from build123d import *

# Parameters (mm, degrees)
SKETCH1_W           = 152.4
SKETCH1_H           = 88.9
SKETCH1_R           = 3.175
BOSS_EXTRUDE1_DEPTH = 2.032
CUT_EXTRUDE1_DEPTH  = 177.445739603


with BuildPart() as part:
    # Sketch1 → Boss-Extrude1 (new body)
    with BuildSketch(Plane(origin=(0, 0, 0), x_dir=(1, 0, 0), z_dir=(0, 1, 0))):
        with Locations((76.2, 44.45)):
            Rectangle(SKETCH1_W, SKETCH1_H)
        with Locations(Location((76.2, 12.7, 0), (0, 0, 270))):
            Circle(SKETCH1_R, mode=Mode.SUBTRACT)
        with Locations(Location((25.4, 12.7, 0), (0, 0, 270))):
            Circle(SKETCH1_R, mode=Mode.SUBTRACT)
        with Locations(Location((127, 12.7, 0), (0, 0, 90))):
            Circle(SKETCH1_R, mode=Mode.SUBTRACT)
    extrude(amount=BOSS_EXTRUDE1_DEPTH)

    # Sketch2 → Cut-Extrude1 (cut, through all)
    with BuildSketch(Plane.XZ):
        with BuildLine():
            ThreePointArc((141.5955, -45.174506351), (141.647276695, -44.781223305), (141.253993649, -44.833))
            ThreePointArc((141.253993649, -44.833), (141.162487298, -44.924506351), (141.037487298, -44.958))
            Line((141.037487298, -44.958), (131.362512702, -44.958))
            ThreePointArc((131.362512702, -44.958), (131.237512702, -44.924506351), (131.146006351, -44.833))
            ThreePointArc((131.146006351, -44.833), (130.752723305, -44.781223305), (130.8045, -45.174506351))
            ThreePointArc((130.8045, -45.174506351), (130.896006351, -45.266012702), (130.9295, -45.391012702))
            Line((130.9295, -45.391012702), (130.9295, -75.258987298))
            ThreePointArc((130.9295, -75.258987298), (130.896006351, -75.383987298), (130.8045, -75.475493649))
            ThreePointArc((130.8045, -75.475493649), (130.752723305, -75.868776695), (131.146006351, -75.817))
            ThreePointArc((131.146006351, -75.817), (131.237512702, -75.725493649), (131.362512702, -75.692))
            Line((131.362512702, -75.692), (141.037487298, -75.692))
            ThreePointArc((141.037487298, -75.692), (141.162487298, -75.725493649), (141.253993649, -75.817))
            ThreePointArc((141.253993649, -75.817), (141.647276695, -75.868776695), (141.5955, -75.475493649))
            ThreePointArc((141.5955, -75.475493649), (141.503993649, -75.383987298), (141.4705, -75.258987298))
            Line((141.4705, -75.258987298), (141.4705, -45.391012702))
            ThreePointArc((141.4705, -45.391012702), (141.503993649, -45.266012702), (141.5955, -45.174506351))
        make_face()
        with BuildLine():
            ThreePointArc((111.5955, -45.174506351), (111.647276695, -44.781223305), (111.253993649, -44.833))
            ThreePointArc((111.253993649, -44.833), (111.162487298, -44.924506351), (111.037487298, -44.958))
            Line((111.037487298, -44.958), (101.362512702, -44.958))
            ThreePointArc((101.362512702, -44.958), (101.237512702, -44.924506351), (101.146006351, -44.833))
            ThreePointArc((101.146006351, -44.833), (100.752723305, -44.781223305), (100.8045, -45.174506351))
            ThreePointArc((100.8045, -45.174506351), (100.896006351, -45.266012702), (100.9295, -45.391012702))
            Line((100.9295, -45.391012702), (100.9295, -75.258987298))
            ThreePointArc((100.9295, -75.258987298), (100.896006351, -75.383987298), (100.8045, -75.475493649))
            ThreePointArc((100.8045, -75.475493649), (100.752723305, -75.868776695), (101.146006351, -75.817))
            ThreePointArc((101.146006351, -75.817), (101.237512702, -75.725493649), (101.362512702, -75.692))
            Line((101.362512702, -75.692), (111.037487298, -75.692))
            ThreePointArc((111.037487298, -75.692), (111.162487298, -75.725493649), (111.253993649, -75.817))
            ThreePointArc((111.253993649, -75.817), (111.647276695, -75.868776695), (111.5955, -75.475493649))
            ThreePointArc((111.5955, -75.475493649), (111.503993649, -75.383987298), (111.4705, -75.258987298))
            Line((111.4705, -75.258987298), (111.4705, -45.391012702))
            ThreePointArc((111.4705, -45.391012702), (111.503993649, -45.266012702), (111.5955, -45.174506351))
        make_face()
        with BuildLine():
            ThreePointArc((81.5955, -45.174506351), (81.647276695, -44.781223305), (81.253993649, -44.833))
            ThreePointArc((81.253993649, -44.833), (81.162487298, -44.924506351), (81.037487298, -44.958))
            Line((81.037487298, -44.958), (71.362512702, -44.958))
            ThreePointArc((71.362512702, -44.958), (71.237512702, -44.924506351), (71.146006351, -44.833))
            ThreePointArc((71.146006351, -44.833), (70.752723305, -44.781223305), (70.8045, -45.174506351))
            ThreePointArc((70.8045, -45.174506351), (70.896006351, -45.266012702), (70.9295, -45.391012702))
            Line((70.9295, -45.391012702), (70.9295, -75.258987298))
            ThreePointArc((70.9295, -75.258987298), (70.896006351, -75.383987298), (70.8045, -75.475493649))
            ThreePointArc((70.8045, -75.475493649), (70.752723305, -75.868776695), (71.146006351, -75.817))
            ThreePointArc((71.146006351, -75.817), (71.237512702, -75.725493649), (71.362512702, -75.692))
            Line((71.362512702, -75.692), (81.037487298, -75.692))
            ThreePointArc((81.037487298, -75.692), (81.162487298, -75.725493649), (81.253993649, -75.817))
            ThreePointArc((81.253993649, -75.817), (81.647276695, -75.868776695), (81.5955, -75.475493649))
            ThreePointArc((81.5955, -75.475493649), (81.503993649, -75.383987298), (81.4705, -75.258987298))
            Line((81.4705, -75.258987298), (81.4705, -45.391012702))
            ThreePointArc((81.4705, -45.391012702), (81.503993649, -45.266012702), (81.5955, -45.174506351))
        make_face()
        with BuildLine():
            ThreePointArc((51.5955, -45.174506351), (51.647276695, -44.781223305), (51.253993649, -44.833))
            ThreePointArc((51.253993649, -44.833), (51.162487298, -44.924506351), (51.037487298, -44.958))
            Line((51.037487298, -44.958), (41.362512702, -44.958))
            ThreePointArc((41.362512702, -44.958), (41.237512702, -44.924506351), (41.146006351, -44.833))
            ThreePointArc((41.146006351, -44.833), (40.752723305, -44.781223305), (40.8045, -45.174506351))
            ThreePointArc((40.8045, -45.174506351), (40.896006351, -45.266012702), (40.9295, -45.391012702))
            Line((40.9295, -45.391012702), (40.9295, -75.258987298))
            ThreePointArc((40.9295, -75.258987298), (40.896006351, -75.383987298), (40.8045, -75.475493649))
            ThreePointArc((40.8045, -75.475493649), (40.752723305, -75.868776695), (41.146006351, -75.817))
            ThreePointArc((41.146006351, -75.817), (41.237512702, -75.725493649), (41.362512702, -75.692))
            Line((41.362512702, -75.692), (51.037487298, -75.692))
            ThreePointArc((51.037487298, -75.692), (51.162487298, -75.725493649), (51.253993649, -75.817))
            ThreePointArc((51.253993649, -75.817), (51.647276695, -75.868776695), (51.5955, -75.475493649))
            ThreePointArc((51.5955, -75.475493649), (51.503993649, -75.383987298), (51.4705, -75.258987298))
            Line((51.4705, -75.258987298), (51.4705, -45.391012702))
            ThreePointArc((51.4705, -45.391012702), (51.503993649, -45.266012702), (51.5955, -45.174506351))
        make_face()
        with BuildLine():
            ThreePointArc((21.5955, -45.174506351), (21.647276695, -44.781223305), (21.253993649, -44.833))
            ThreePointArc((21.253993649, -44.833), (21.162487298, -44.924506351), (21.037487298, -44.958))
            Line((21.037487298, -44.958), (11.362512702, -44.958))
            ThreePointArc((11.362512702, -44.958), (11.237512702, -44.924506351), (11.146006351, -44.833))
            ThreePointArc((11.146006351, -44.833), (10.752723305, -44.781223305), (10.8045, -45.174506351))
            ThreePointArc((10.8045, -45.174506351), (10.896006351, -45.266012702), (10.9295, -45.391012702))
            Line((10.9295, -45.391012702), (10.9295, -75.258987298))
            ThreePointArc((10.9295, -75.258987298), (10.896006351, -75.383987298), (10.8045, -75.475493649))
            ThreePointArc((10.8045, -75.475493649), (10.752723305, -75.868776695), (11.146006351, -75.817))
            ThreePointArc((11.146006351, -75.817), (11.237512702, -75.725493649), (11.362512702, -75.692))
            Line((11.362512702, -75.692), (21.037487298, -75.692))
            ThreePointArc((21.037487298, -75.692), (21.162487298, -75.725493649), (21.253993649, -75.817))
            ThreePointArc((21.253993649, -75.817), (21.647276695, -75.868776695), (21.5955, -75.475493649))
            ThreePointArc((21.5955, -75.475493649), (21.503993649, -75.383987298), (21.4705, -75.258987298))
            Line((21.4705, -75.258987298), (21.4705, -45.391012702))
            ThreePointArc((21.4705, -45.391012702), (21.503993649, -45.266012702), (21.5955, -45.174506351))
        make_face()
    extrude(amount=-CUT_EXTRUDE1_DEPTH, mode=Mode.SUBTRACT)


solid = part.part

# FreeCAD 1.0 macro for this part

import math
import FreeCAD as App
import Part
import Sketcher
Q = App.Units.Quantity

doc = App.newDocument("Part")
body = doc.addObject("PartDesign::Body", "Body")

sketch1 = doc.addObject("Sketcher::SketchObject", "Sketch")
body.addObject(sketch1)
sketch1.AttachmentSupport = (doc.XZ_Plane, [""])
sketch1.MapMode = "FlatFace"
sketch1.addGeometry([
    Part.LineSegment(App.Vector(0, -88.9, 0), App.Vector(0, 0, 0)),
    Part.LineSegment(App.Vector(0, 0, 0), App.Vector(152.4, 0, 0)),
    Part.LineSegment(App.Vector(152.4, 0, 0), App.Vector(152.4, -88.9, 0)),
    Part.LineSegment(App.Vector(152.4, -88.9, 0), App.Vector(0, -88.9, 0)),
    Part.Circle(App.Vector(25.4, -12.7, 0), App.Vector(0, 0, 1), 3.2),
    Part.Circle(App.Vector(76.2, -12.7, 0), App.Vector(0, 0, 1), 3.2),
    Part.Circle(App.Vector(127, -12.7, 0), App.Vector(0, 0, 1), 3.2),
], False)
sketch1.addConstraint([
    Sketcher.Constraint("Coincident", 0, 2, 1, 1),
    Sketcher.Constraint("Coincident", 1, 2, 2, 1),
    Sketcher.Constraint("Coincident", 2, 2, 3, 1),
    Sketcher.Constraint("Coincident", 3, 2, 0, 1),
    Sketcher.Constraint("Vertical", 0),
    Sketcher.Constraint("Horizontal", 1),
    Sketcher.Constraint("Vertical", 2),
    Sketcher.Constraint("Horizontal", 3),
    Sketcher.Constraint("Coincident", 0, 2, -1, 1),
    Sketcher.Constraint("Equal", 4, 5),
    Sketcher.Constraint("Equal", 5, 6),
    Sketcher.Constraint("Horizontal", 4, 3, 5, 3),
    Sketcher.Constraint("Horizontal", 5, 3, 6, 3),
    Sketcher.Constraint("Diameter", 4, Q("0.25 in")),
    Sketcher.Constraint("DistanceX", 1, 1, 1, 2, Q("6 in")),
    Sketcher.Constraint("DistanceY", 0, 1, 0, 2, Q("3.5 in")),
    Sketcher.Constraint("DistanceX", -1, 1, 4, 3, Q("1 in")),
    Sketcher.Constraint("DistanceX", -1, 1, 5, 3, Q("3 in")),
    Sketcher.Constraint("DistanceX", -1, 1, 6, 3, Q("5 in")),
    Sketcher.Constraint("DistanceY", 2, 2, 6, 3, Q("3 in")),
])
pad1 = doc.addObject("PartDesign::Pad", "Pad")
body.addObject(pad1)
pad1.Profile = sketch1
pad1.Length = Q("0.08 in")
pad1.Reversed = True

sketch2 = doc.addObject("Sketcher::SketchObject", "Sketch001")
body.addObject(sketch2)
sketch2.AttachmentSupport = (doc.XZ_Plane, [""])
sketch2.MapMode = "FlatFace"
sketch2.addGeometry([
    Part.ArcOfCircle(Part.Circle(App.Vector(141.47, -44.96, 0), App.Vector(0, 0, 1), 0.25), math.radians(-60), math.radians(150)),
    Part.ArcOfCircle(Part.Circle(App.Vector(141.04, -44.71, 0), App.Vector(0, 0, 1), 0.25), math.radians(-90), math.radians(-30)),
    Part.LineSegment(App.Vector(141.04, -44.96, 0), App.Vector(131.36, -44.96, 0)),
    Part.ArcOfCircle(Part.Circle(App.Vector(131.36, -44.71, 0), App.Vector(0, 0, 1), 0.25), math.radians(-150), math.radians(-90)),
    Part.ArcOfCircle(Part.Circle(App.Vector(130.93, -44.96, 0), App.Vector(0, 0, 1), 0.25), math.radians(30), math.radians(240)),
    Part.ArcOfCircle(Part.Circle(App.Vector(130.68, -45.39, 0), App.Vector(0, 0, 1), 0.25), math.radians(0), math.radians(60)),
    Part.LineSegment(App.Vector(130.93, -45.39, 0), App.Vector(130.93, -75.26, 0)),
    Part.ArcOfCircle(Part.Circle(App.Vector(130.68, -75.26, 0), App.Vector(0, 0, 1), 0.25), math.radians(-60), math.radians(0)),
    Part.ArcOfCircle(Part.Circle(App.Vector(130.93, -75.69, 0), App.Vector(0, 0, 1), 0.25), math.radians(120), math.radians(330)),
    Part.ArcOfCircle(Part.Circle(App.Vector(131.36, -75.94, 0), App.Vector(0, 0, 1), 0.25), math.radians(90), math.radians(150)),
    Part.LineSegment(App.Vector(131.36, -75.69, 0), App.Vector(141.04, -75.69, 0)),
    Part.ArcOfCircle(Part.Circle(App.Vector(141.04, -75.94, 0), App.Vector(0, 0, 1), 0.25), math.radians(30), math.radians(90)),
    Part.ArcOfCircle(Part.Circle(App.Vector(141.47, -75.69, 0), App.Vector(0, 0, 1), 0.25), math.radians(-150), math.radians(60)),
    Part.ArcOfCircle(Part.Circle(App.Vector(141.72, -75.26, 0), App.Vector(0, 0, 1), 0.25), math.radians(180), math.radians(240)),
    Part.LineSegment(App.Vector(141.47, -75.26, 0), App.Vector(141.47, -45.39, 0)),
    Part.ArcOfCircle(Part.Circle(App.Vector(141.72, -45.39, 0), App.Vector(0, 0, 1), 0.25), math.radians(120), math.radians(180)),
    Part.ArcOfCircle(Part.Circle(App.Vector(111.47, -44.96, 0), App.Vector(0, 0, 1), 0.25), math.radians(-60), math.radians(150)),
    Part.ArcOfCircle(Part.Circle(App.Vector(111.04, -44.71, 0), App.Vector(0, 0, 1), 0.25), math.radians(-90), math.radians(-30)),
    Part.LineSegment(App.Vector(111.04, -44.96, 0), App.Vector(101.36, -44.96, 0)),
    Part.ArcOfCircle(Part.Circle(App.Vector(101.36, -44.71, 0), App.Vector(0, 0, 1), 0.25), math.radians(-150), math.radians(-90)),
    Part.ArcOfCircle(Part.Circle(App.Vector(100.93, -44.96, 0), App.Vector(0, 0, 1), 0.25), math.radians(30), math.radians(240)),
    Part.ArcOfCircle(Part.Circle(App.Vector(100.68, -45.39, 0), App.Vector(0, 0, 1), 0.25), math.radians(0), math.radians(60)),
    Part.LineSegment(App.Vector(100.93, -45.39, 0), App.Vector(100.93, -75.26, 0)),
    Part.ArcOfCircle(Part.Circle(App.Vector(100.68, -75.26, 0), App.Vector(0, 0, 1), 0.25), math.radians(-60), math.radians(0)),
    Part.ArcOfCircle(Part.Circle(App.Vector(100.93, -75.69, 0), App.Vector(0, 0, 1), 0.25), math.radians(120), math.radians(330)),
    Part.ArcOfCircle(Part.Circle(App.Vector(101.36, -75.94, 0), App.Vector(0, 0, 1), 0.25), math.radians(90), math.radians(150)),
    Part.LineSegment(App.Vector(101.36, -75.69, 0), App.Vector(111.04, -75.69, 0)),
    Part.ArcOfCircle(Part.Circle(App.Vector(111.04, -75.94, 0), App.Vector(0, 0, 1), 0.25), math.radians(30), math.radians(90)),
    Part.ArcOfCircle(Part.Circle(App.Vector(111.47, -75.69, 0), App.Vector(0, 0, 1), 0.25), math.radians(-150), math.radians(60)),
    Part.ArcOfCircle(Part.Circle(App.Vector(111.72, -75.26, 0), App.Vector(0, 0, 1), 0.25), math.radians(180), math.radians(240)),
    Part.LineSegment(App.Vector(111.47, -75.26, 0), App.Vector(111.47, -45.39, 0)),
    Part.ArcOfCircle(Part.Circle(App.Vector(111.72, -45.39, 0), App.Vector(0, 0, 1), 0.25), math.radians(120), math.radians(180)),
    Part.ArcOfCircle(Part.Circle(App.Vector(81.47, -44.96, 0), App.Vector(0, 0, 1), 0.25), math.radians(-60), math.radians(150)),
    Part.ArcOfCircle(Part.Circle(App.Vector(81.04, -44.71, 0), App.Vector(0, 0, 1), 0.25), math.radians(-90), math.radians(-30)),
    Part.LineSegment(App.Vector(81.04, -44.96, 0), App.Vector(71.36, -44.96, 0)),
    Part.ArcOfCircle(Part.Circle(App.Vector(71.36, -44.71, 0), App.Vector(0, 0, 1), 0.25), math.radians(-150), math.radians(-90)),
    Part.ArcOfCircle(Part.Circle(App.Vector(70.93, -44.96, 0), App.Vector(0, 0, 1), 0.25), math.radians(30), math.radians(240)),
    Part.ArcOfCircle(Part.Circle(App.Vector(70.68, -45.39, 0), App.Vector(0, 0, 1), 0.25), math.radians(0), math.radians(60)),
    Part.LineSegment(App.Vector(70.93, -45.39, 0), App.Vector(70.93, -75.26, 0)),
    Part.ArcOfCircle(Part.Circle(App.Vector(70.68, -75.26, 0), App.Vector(0, 0, 1), 0.25), math.radians(-60), math.radians(0)),
    Part.ArcOfCircle(Part.Circle(App.Vector(70.93, -75.69, 0), App.Vector(0, 0, 1), 0.25), math.radians(120), math.radians(330)),
    Part.ArcOfCircle(Part.Circle(App.Vector(71.36, -75.94, 0), App.Vector(0, 0, 1), 0.25), math.radians(90), math.radians(150)),
    Part.LineSegment(App.Vector(71.36, -75.69, 0), App.Vector(81.04, -75.69, 0)),
    Part.ArcOfCircle(Part.Circle(App.Vector(81.04, -75.94, 0), App.Vector(0, 0, 1), 0.25), math.radians(30), math.radians(90)),
    Part.ArcOfCircle(Part.Circle(App.Vector(81.47, -75.69, 0), App.Vector(0, 0, 1), 0.25), math.radians(-150), math.radians(60)),
    Part.ArcOfCircle(Part.Circle(App.Vector(81.72, -75.26, 0), App.Vector(0, 0, 1), 0.25), math.radians(180), math.radians(240)),
    Part.LineSegment(App.Vector(81.47, -75.26, 0), App.Vector(81.47, -45.39, 0)),
    Part.ArcOfCircle(Part.Circle(App.Vector(81.72, -45.39, 0), App.Vector(0, 0, 1), 0.25), math.radians(120), math.radians(180)),
    Part.ArcOfCircle(Part.Circle(App.Vector(51.47, -44.96, 0), App.Vector(0, 0, 1), 0.25), math.radians(-60), math.radians(150)),
    Part.ArcOfCircle(Part.Circle(App.Vector(51.04, -44.71, 0), App.Vector(0, 0, 1), 0.25), math.radians(-90), math.radians(-30)),
    Part.LineSegment(App.Vector(51.04, -44.96, 0), App.Vector(41.36, -44.96, 0)),
    Part.ArcOfCircle(Part.Circle(App.Vector(41.36, -44.71, 0), App.Vector(0, 0, 1), 0.25), math.radians(-150), math.radians(-90)),
    Part.ArcOfCircle(Part.Circle(App.Vector(40.93, -44.96, 0), App.Vector(0, 0, 1), 0.25), math.radians(30), math.radians(240)),
    Part.ArcOfCircle(Part.Circle(App.Vector(40.68, -45.39, 0), App.Vector(0, 0, 1), 0.25), math.radians(0), math.radians(60)),
    Part.LineSegment(App.Vector(40.93, -45.39, 0), App.Vector(40.93, -75.26, 0)),
    Part.ArcOfCircle(Part.Circle(App.Vector(40.68, -75.26, 0), App.Vector(0, 0, 1), 0.25), math.radians(-60), math.radians(0)),
    Part.ArcOfCircle(Part.Circle(App.Vector(40.93, -75.69, 0), App.Vector(0, 0, 1), 0.25), math.radians(120), math.radians(330)),
    Part.ArcOfCircle(Part.Circle(App.Vector(41.36, -75.94, 0), App.Vector(0, 0, 1), 0.25), math.radians(90), math.radians(150)),
    Part.LineSegment(App.Vector(41.36, -75.69, 0), App.Vector(51.04, -75.69, 0)),
    Part.ArcOfCircle(Part.Circle(App.Vector(51.04, -75.94, 0), App.Vector(0, 0, 1), 0.25), math.radians(30), math.radians(90)),
    Part.ArcOfCircle(Part.Circle(App.Vector(51.47, -75.69, 0), App.Vector(0, 0, 1), 0.25), math.radians(-150), math.radians(60)),
    Part.ArcOfCircle(Part.Circle(App.Vector(51.72, -75.26, 0), App.Vector(0, 0, 1), 0.25), math.radians(180), math.radians(240)),
    Part.LineSegment(App.Vector(51.47, -75.26, 0), App.Vector(51.47, -45.39, 0)),
    Part.ArcOfCircle(Part.Circle(App.Vector(51.72, -45.39, 0), App.Vector(0, 0, 1), 0.25), math.radians(120), math.radians(180)),
    Part.ArcOfCircle(Part.Circle(App.Vector(21.47, -44.96, 0), App.Vector(0, 0, 1), 0.25), math.radians(-60), math.radians(150)),
    Part.ArcOfCircle(Part.Circle(App.Vector(21.04, -44.71, 0), App.Vector(0, 0, 1), 0.25), math.radians(-90), math.radians(-30)),
    Part.LineSegment(App.Vector(21.04, -44.96, 0), App.Vector(11.36, -44.96, 0)),
    Part.ArcOfCircle(Part.Circle(App.Vector(11.36, -44.71, 0), App.Vector(0, 0, 1), 0.25), math.radians(-150), math.radians(-90)),
    Part.ArcOfCircle(Part.Circle(App.Vector(10.93, -44.96, 0), App.Vector(0, 0, 1), 0.25), math.radians(30), math.radians(240)),
    Part.ArcOfCircle(Part.Circle(App.Vector(10.68, -45.39, 0), App.Vector(0, 0, 1), 0.25), math.radians(0), math.radians(60)),
    Part.LineSegment(App.Vector(10.93, -45.39, 0), App.Vector(10.93, -75.26, 0)),
    Part.ArcOfCircle(Part.Circle(App.Vector(10.68, -75.26, 0), App.Vector(0, 0, 1), 0.25), math.radians(-60), math.radians(0)),
    Part.ArcOfCircle(Part.Circle(App.Vector(10.93, -75.69, 0), App.Vector(0, 0, 1), 0.25), math.radians(120), math.radians(330)),
    Part.ArcOfCircle(Part.Circle(App.Vector(11.36, -75.94, 0), App.Vector(0, 0, 1), 0.25), math.radians(90), math.radians(150)),
    Part.LineSegment(App.Vector(11.36, -75.69, 0), App.Vector(21.04, -75.69, 0)),
    Part.ArcOfCircle(Part.Circle(App.Vector(21.04, -75.94, 0), App.Vector(0, 0, 1), 0.25), math.radians(30), math.radians(90)),
    Part.ArcOfCircle(Part.Circle(App.Vector(21.47, -75.69, 0), App.Vector(0, 0, 1), 0.25), math.radians(-150), math.radians(60)),
    Part.ArcOfCircle(Part.Circle(App.Vector(21.72, -75.26, 0), App.Vector(0, 0, 1), 0.25), math.radians(180), math.radians(240)),
    Part.LineSegment(App.Vector(21.47, -75.26, 0), App.Vector(21.47, -45.39, 0)),
    Part.ArcOfCircle(Part.Circle(App.Vector(21.72, -45.39, 0), App.Vector(0, 0, 1), 0.25), math.radians(120), math.radians(180)),
], False)
sketch2.addConstraint([
    Sketcher.Constraint("Tangent", 0, 2, 1, 2),
    Sketcher.Constraint("Tangent", 1, 1, 2, 1),
    Sketcher.Constraint("Tangent", 2, 2, 3, 2),
    Sketcher.Constraint("Tangent", 3, 1, 4, 1),
    Sketcher.Constraint("Tangent", 4, 2, 5, 2),
    Sketcher.Constraint("Tangent", 5, 1, 6, 1),
    Sketcher.Constraint("Tangent", 6, 2, 7, 2),
    Sketcher.Constraint("Tangent", 7, 1, 8, 1),
    Sketcher.Constraint("Tangent", 8, 2, 9, 2),
    Sketcher.Constraint("Tangent", 9, 1, 10, 1),
    Sketcher.Constraint("Tangent", 10, 2, 11, 2),
    Sketcher.Constraint("Tangent", 11, 1, 12, 1),
    Sketcher.Constraint("Tangent", 12, 2, 13, 2),
    Sketcher.Constraint("Tangent", 13, 1, 14, 1),
    Sketcher.Constraint("Tangent", 14, 2, 15, 2),
    Sketcher.Constraint("Tangent", 15, 1, 0, 1),
    Sketcher.Constraint("Tangent", 16, 2, 17, 2),
    Sketcher.Constraint("Tangent", 17, 1, 18, 1),
    Sketcher.Constraint("Tangent", 18, 2, 19, 2),
    Sketcher.Constraint("Tangent", 19, 1, 20, 1),
    Sketcher.Constraint("Tangent", 20, 2, 21, 2),
    Sketcher.Constraint("Tangent", 21, 1, 22, 1),
    Sketcher.Constraint("Tangent", 22, 2, 23, 2),
    Sketcher.Constraint("Tangent", 23, 1, 24, 1),
    Sketcher.Constraint("Tangent", 24, 2, 25, 2),
    Sketcher.Constraint("Tangent", 25, 1, 26, 1),
    Sketcher.Constraint("Tangent", 26, 2, 27, 2),
    Sketcher.Constraint("Tangent", 27, 1, 28, 1),
    Sketcher.Constraint("Tangent", 28, 2, 29, 2),
    Sketcher.Constraint("Tangent", 29, 1, 30, 1),
    Sketcher.Constraint("Tangent", 30, 2, 31, 2),
    Sketcher.Constraint("Tangent", 31, 1, 16, 1),
    Sketcher.Constraint("Tangent", 32, 2, 33, 2),
    Sketcher.Constraint("Tangent", 33, 1, 34, 1),
    Sketcher.Constraint("Tangent", 34, 2, 35, 2),
    Sketcher.Constraint("Tangent", 35, 1, 36, 1),
    Sketcher.Constraint("Tangent", 36, 2, 37, 2),
    Sketcher.Constraint("Tangent", 37, 1, 38, 1),
    Sketcher.Constraint("Tangent", 38, 2, 39, 2),
    Sketcher.Constraint("Tangent", 39, 1, 40, 1),
    Sketcher.Constraint("Tangent", 40, 2, 41, 2),
    Sketcher.Constraint("Tangent", 41, 1, 42, 1),
    Sketcher.Constraint("Tangent", 42, 2, 43, 2),
    Sketcher.Constraint("Tangent", 43, 1, 44, 1),
    Sketcher.Constraint("Tangent", 44, 2, 45, 2),
    Sketcher.Constraint("Tangent", 45, 1, 46, 1),
    Sketcher.Constraint("Tangent", 46, 2, 47, 2),
    Sketcher.Constraint("Tangent", 47, 1, 32, 1),
    Sketcher.Constraint("Tangent", 48, 2, 49, 2),
    Sketcher.Constraint("Tangent", 49, 1, 50, 1),
    Sketcher.Constraint("Tangent", 50, 2, 51, 2),
    Sketcher.Constraint("Tangent", 51, 1, 52, 1),
    Sketcher.Constraint("Tangent", 52, 2, 53, 2),
    Sketcher.Constraint("Tangent", 53, 1, 54, 1),
    Sketcher.Constraint("Tangent", 54, 2, 55, 2),
    Sketcher.Constraint("Tangent", 55, 1, 56, 1),
    Sketcher.Constraint("Tangent", 56, 2, 57, 2),
    Sketcher.Constraint("Tangent", 57, 1, 58, 1),
    Sketcher.Constraint("Tangent", 58, 2, 59, 2),
    Sketcher.Constraint("Tangent", 59, 1, 60, 1),
    Sketcher.Constraint("Tangent", 60, 2, 61, 2),
    Sketcher.Constraint("Tangent", 61, 1, 62, 1),
    Sketcher.Constraint("Tangent", 62, 2, 63, 2),
    Sketcher.Constraint("Tangent", 63, 1, 48, 1),
    Sketcher.Constraint("Tangent", 64, 2, 65, 2),
    Sketcher.Constraint("Tangent", 65, 1, 66, 1),
    Sketcher.Constraint("Tangent", 66, 2, 67, 2),
    Sketcher.Constraint("Tangent", 67, 1, 68, 1),
    Sketcher.Constraint("Tangent", 68, 2, 69, 2),
    Sketcher.Constraint("Tangent", 69, 1, 70, 1),
    Sketcher.Constraint("Tangent", 70, 2, 71, 2),
    Sketcher.Constraint("Tangent", 71, 1, 72, 1),
    Sketcher.Constraint("Tangent", 72, 2, 73, 2),
    Sketcher.Constraint("Tangent", 73, 1, 74, 1),
    Sketcher.Constraint("Tangent", 74, 2, 75, 2),
    Sketcher.Constraint("Tangent", 75, 1, 76, 1),
    Sketcher.Constraint("Tangent", 76, 2, 77, 2),
    Sketcher.Constraint("Tangent", 77, 1, 78, 1),
    Sketcher.Constraint("Tangent", 78, 2, 79, 2),
    Sketcher.Constraint("Tangent", 79, 1, 64, 1),
    Sketcher.Constraint("Horizontal", 2),
    Sketcher.Constraint("Vertical", 6),
    Sketcher.Constraint("Horizontal", 10),
    Sketcher.Constraint("Vertical", 14),
    Sketcher.Constraint("Horizontal", 18),
    Sketcher.Constraint("Vertical", 22),
    Sketcher.Constraint("Horizontal", 26),
    Sketcher.Constraint("Vertical", 30),
    Sketcher.Constraint("Horizontal", 34),
    Sketcher.Constraint("Vertical", 38),
    Sketcher.Constraint("Horizontal", 42),
    Sketcher.Constraint("Vertical", 46),
    Sketcher.Constraint("Horizontal", 50),
    Sketcher.Constraint("Vertical", 54),
    Sketcher.Constraint("Horizontal", 58),
    Sketcher.Constraint("Vertical", 62),
    Sketcher.Constraint("Horizontal", 66),
    Sketcher.Constraint("Vertical", 70),
    Sketcher.Constraint("Horizontal", 74),
    Sketcher.Constraint("Vertical", 78),
    Sketcher.Constraint("Equal", 0, 1),
    Sketcher.Constraint("Equal", 1, 3),
    Sketcher.Constraint("Equal", 3, 4),
    Sketcher.Constraint("Equal", 4, 5),
    Sketcher.Constraint("Equal", 5, 7),
    Sketcher.Constraint("Equal", 7, 8),
    Sketcher.Constraint("Equal", 8, 9),
    Sketcher.Constraint("Equal", 9, 11),
    Sketcher.Constraint("Equal", 11, 12),
    Sketcher.Constraint("Equal", 12, 13),
    Sketcher.Constraint("Equal", 13, 15),
    Sketcher.Constraint("Equal", 15, 16),
    Sketcher.Constraint("Equal", 16, 17),
    Sketcher.Constraint("Equal", 17, 19),
    Sketcher.Constraint("Equal", 19, 20),
    Sketcher.Constraint("Equal", 20, 21),
    Sketcher.Constraint("Equal", 21, 23),
    Sketcher.Constraint("Equal", 23, 24),
    Sketcher.Constraint("Equal", 24, 25),
    Sketcher.Constraint("Equal", 25, 27),
    Sketcher.Constraint("Equal", 27, 28),
    Sketcher.Constraint("Equal", 28, 29),
    Sketcher.Constraint("Equal", 29, 31),
    Sketcher.Constraint("Equal", 31, 32),
    Sketcher.Constraint("Equal", 32, 33),
    Sketcher.Constraint("Equal", 33, 35),
    Sketcher.Constraint("Equal", 35, 36),
    Sketcher.Constraint("Equal", 36, 37),
    Sketcher.Constraint("Equal", 37, 39),
    Sketcher.Constraint("Equal", 39, 40),
    Sketcher.Constraint("Equal", 40, 41),
    Sketcher.Constraint("Equal", 41, 43),
    Sketcher.Constraint("Equal", 43, 44),
    Sketcher.Constraint("Equal", 44, 45),
    Sketcher.Constraint("Equal", 45, 47),
    Sketcher.Constraint("Equal", 47, 48),
    Sketcher.Constraint("Equal", 48, 49),
    Sketcher.Constraint("Equal", 49, 51),
    Sketcher.Constraint("Equal", 51, 52),
    Sketcher.Constraint("Equal", 52, 53),
    Sketcher.Constraint("Equal", 53, 55),
    Sketcher.Constraint("Equal", 55, 56),
    Sketcher.Constraint("Equal", 56, 57),
    Sketcher.Constraint("Equal", 57, 59),
    Sketcher.Constraint("Equal", 59, 60),
    Sketcher.Constraint("Equal", 60, 61),
    Sketcher.Constraint("Equal", 61, 63),
    Sketcher.Constraint("Equal", 63, 64),
    Sketcher.Constraint("Equal", 64, 65),
    Sketcher.Constraint("Equal", 65, 67),
    Sketcher.Constraint("Equal", 67, 68),
    Sketcher.Constraint("Equal", 68, 69),
    Sketcher.Constraint("Equal", 69, 71),
    Sketcher.Constraint("Equal", 71, 72),
    Sketcher.Constraint("Equal", 72, 73),
    Sketcher.Constraint("Equal", 73, 75),
    Sketcher.Constraint("Equal", 75, 76),
    Sketcher.Constraint("Equal", 76, 77),
    Sketcher.Constraint("Equal", 77, 79),
    Sketcher.Constraint("Horizontal", 0, 3, 4, 3),
    Sketcher.Constraint("Horizontal", 8, 3, 12, 3),
    Sketcher.Constraint("Horizontal", 7, 3, 13, 3),
    Sketcher.Constraint("Horizontal", 5, 3, 15, 3),
    Sketcher.Constraint("Horizontal", 4, 3, 16, 3),
    Sketcher.Constraint("Horizontal", 3, 3, 17, 3),
    Sketcher.Constraint("Horizontal", 16, 3, 20, 3),
    Sketcher.Constraint("Horizontal", 15, 3, 21, 3),
    Sketcher.Constraint("Horizontal", 13, 3, 23, 3),
    Sketcher.Constraint("Horizontal", 12, 3, 24, 3),
    Sketcher.Constraint("Horizontal", 11, 3, 25, 3),
    Sketcher.Constraint("Horizontal", 24, 3, 28, 3),
    Sketcher.Constraint("Horizontal", 23, 3, 29, 3),
    Sketcher.Constraint("Horizontal", 21, 3, 31, 3),
    Sketcher.Constraint("Horizontal", 20, 3, 32, 3),
    Sketcher.Constraint("Horizontal", 19, 3, 33, 3),
    Sketcher.Constraint("Horizontal", 32, 3, 36, 3),
    Sketcher.Constraint("Horizontal", 31, 3, 37, 3),
    Sketcher.Constraint("Horizontal", 29, 3, 39, 3),
    Sketcher.Constraint("Horizontal", 28, 3, 40, 3),
    Sketcher.Constraint("Horizontal", 27, 3, 41, 3),
    Sketcher.Constraint("Horizontal", 40, 3, 44, 3),
    Sketcher.Constraint("Horizontal", 39, 3, 45, 3),
    Sketcher.Constraint("Horizontal", 37, 3, 47, 3),
    Sketcher.Constraint("Horizontal", 36, 3, 48, 3),
    Sketcher.Constraint("Horizontal", 35, 3, 49, 3),
    Sketcher.Constraint("Horizontal", 48, 3, 52, 3),
    Sketcher.Constraint("Horizontal", 47, 3, 53, 3),
    Sketcher.Constraint("Horizontal", 45, 3, 55, 3),
    Sketcher.Constraint("Horizontal", 44, 3, 56, 3),
    Sketcher.Constraint("Horizontal", 43, 3, 57, 3),
    Sketcher.Constraint("Horizontal", 56, 3, 60, 3),
    Sketcher.Constraint("Horizontal", 55, 3, 61, 3),
    Sketcher.Constraint("Horizontal", 53, 3, 63, 3),
    Sketcher.Constraint("Horizontal", 52, 3, 64, 3),
    Sketcher.Constraint("Horizontal", 51, 3, 65, 3),
    Sketcher.Constraint("Horizontal", 64, 3, 68, 3),
    Sketcher.Constraint("Horizontal", 63, 3, 69, 3),
    Sketcher.Constraint("Horizontal", 61, 3, 71, 3),
    Sketcher.Constraint("Horizontal", 60, 3, 72, 3),
    Sketcher.Constraint("Horizontal", 59, 3, 73, 3),
    Sketcher.Constraint("Horizontal", 72, 3, 76, 3),
    Sketcher.Constraint("Horizontal", 71, 3, 77, 3),
    Sketcher.Constraint("Horizontal", 69, 3, 79, 3),
    Sketcher.Constraint("Horizontal", 68, 3, 1, 1),
    Sketcher.Constraint("Horizontal", 76, 3, 9, 1),
    Sketcher.Constraint("Vertical", 4, 3, 8, 3),
    Sketcher.Constraint("Vertical", 8, 3, 5, 1),
    Sketcher.Constraint("Equal", 10, 18),
    Sketcher.Constraint("Equal", 26, 34),
    Sketcher.Constraint("Equal", 42, 50),
    Sketcher.Constraint("Equal", 58, 66),
    Sketcher.Constraint("DistanceY", 0, 3, -1, 1, Q("1.77 in")),
    Sketcher.Constraint("DistanceY", 8, 3, -1, 1, Q("2.98 in")),
    Sketcher.Constraint("Radius", 0, 0.25),
    Sketcher.Constraint("DistanceX", -1, 1, 32, 3, Q("3.2075 in")),
    Sketcher.Constraint("DistanceX", -1, 1, 36, 3, Q("2.7925 in")),
    Sketcher.Constraint("DistanceX", -1, 1, 0, 3, 141.4705),
    Sketcher.Constraint("DistanceX", -1, 1, 16, 3, 111.4705),
    Sketcher.Constraint("DistanceX", -1, 1, 48, 3, 51.4705),
    Sketcher.Constraint("DistanceX", -1, 1, 64, 3, 21.4705),
])
pocket1 = doc.addObject("PartDesign::Pocket", "Pocket")
body.addObject(pocket1)
pocket1.Profile = sketch2
pocket1.Type = "ThroughAll"

doc.recompute()
